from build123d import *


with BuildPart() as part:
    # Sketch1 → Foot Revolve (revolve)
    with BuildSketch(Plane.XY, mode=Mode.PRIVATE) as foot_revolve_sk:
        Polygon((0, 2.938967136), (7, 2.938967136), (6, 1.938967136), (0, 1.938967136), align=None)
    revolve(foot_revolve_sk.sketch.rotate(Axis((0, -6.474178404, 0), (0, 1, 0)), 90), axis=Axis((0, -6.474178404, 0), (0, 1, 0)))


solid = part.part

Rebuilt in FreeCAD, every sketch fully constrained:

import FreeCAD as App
import Part
import Sketcher

V = App.Vector
Q = App.Units.Quantity

doc = App.newDocument("Part")
body = doc.addObject("PartDesign::Body", "Body")

# Sketch on XY plane
sketch1 = body.newObject("Sketcher::SketchObject", "Sketch")
sketch1.AttachmentSupport = (doc.getObject("XY_Plane"), [""])
sketch1.MapMode = "FlatFace"
sketch1.addGeometry([
    Part.LineSegment(V(7, 2.9, 0), V(0, 2.9, 0)),
    Part.LineSegment(V(0, 2.9, 0), V(0, 1.9, 0)),
    Part.LineSegment(V(0, 1.9, 0), V(6, 1.9, 0)),
    Part.LineSegment(V(6, 1.9, 0), V(7, 2.9, 0)),
], False)
sketch1.addConstraint([
    Sketcher.Constraint("Coincident", 0, 2, 1, 1),
    Sketcher.Constraint("Coincident", 1, 2, 2, 1),
    Sketcher.Constraint("Coincident", 2, 2, 3, 1),
    Sketcher.Constraint("Coincident", 3, 2, 0, 1),
    Sketcher.Constraint("Horizontal", 0),
    Sketcher.Constraint("Vertical", 1),
    Sketcher.Constraint("Horizontal", 2),
    Sketcher.Constraint("PointOnObject", 0, 2, -2),
    Sketcher.Constraint("DistanceX", 0, 2, 0, 1, Q("7 mm")),
    Sketcher.Constraint("DistanceX", 2, 1, 2, 2, Q("6 mm")),
    Sketcher.Constraint("DistanceY", 1, 2, 1, 1, Q("1 mm")),
    Sketcher.Constraint("DistanceY", -1, 1, 0, 2, Q("2.938967 mm")),
])
revolution = body.newObject("PartDesign::Revolution", "Revolution")
revolution.Profile = sketch1
revolution.ReferenceAxis = (sketch1, ["V_Axis"])
revolution.Angle = 360

doc.recompute()
